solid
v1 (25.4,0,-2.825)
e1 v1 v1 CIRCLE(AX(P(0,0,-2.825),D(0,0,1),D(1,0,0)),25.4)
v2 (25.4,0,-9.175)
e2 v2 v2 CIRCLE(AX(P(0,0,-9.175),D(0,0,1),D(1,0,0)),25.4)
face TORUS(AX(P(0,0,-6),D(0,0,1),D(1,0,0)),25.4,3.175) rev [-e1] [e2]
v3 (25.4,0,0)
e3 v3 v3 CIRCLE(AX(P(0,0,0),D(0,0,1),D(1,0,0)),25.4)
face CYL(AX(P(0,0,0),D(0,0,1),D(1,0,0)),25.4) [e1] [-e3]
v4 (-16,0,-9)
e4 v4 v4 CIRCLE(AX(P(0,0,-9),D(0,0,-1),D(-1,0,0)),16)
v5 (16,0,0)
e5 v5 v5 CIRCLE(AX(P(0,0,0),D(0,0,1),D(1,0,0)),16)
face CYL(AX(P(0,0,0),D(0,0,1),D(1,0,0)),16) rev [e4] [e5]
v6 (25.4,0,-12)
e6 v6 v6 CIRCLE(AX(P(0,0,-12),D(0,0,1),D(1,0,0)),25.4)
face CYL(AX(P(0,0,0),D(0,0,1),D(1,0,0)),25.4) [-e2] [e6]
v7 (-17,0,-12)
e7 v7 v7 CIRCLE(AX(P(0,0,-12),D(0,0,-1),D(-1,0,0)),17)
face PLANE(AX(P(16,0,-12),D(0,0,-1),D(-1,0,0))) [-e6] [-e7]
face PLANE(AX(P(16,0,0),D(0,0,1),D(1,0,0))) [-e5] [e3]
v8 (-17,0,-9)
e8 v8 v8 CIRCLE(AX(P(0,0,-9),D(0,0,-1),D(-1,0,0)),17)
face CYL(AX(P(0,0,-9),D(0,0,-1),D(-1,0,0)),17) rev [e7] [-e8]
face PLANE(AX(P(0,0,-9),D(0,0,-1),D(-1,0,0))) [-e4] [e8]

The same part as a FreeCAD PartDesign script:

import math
import FreeCAD as App
import Part
import Sketcher

doc = App.newDocument("Part")
body = doc.addObject("PartDesign::Body", "Body")

sketch1 = body.newObject("Sketcher::SketchObject", "Sketch")
sketch1.AttachmentSupport = (doc.getObject("XZ_Plane"), [""])
sketch1.MapMode = "FlatFace"
sketch1.addGeometry([
    Part.LineSegment(App.Vector(16, 0, 0), App.Vector(25.4, 0, 0)),
    Part.LineSegment(App.Vector(25.4, 0, 0), App.Vector(25.4, -2.8, 0)),
    Part.ArcOfCircle(Part.Circle(App.Vector(25.4, -6, 0), App.Vector(0, 0, 1), 3.2), math.radians(90), math.radians(270)),
    Part.LineSegment(App.Vector(25.4, -9.2, 0), App.Vector(25.4, -12, 0)),
    Part.LineSegment(App.Vector(25.4, -12, 0), App.Vector(16, -12, 0)),
    Part.LineSegment(App.Vector(16, -12, 0), App.Vector(16, 0, 0)),
], False)
sketch1.addConstraint([
    Sketcher.Constraint("Coincident", 0, 2, 1, 1),
    Sketcher.Constraint("Coincident", 1, 2, 2, 1),
    Sketcher.Constraint("Coincident", 2, 2, 3, 1),
    Sketcher.Constraint("Coincident", 3, 2, 4, 1),
    Sketcher.Constraint("Coincident", 4, 2, 5, 1),
    Sketcher.Constraint("Coincident", 5, 2, 0, 1),
    Sketcher.Constraint("Horizontal", 0),
    Sketcher.Constraint("Vertical", 1),
    Sketcher.Constraint("Vertical", 3),
    Sketcher.Constraint("Horizontal", 4),
    Sketcher.Constraint("Vertical", 5),
    Sketcher.Constraint("PointOnObject", 0, 2, -1),
    Sketcher.Constraint("Vertical", 2, 3, 0, 2),
    Sketcher.Constraint("Vertical", 1, 2, 2, 2),
    Sketcher.Constraint("Equal", 1, 3),
    Sketcher.Constraint("DistanceY", 5, 1, 5, 2, 12.0),
    Sketcher.Constraint("DistanceX", 0, 1, 0, 2, 9.4),
    Sketcher.Constraint("DistanceX", -1, 1, 4, 2, 16.0),
    Sketcher.Constraint("Radius", 2, 3.175),
])
revolution = body.newObject("PartDesign::Revolution", "Revolution")
revolution.Profile = sketch1
revolution.ReferenceAxis = (sketch1, ["V_Axis"])
revolution.Angle = 360

sketch2 = body.newObject("Sketcher::SketchObject", "Sketch001")
sketch2.AttachmentSupport = (doc.getObject("XY_Plane"), [""])
sketch2.MapMode = "FlatFace"
sketch2.AttachmentOffset = App.Placement(App.Vector(0, 0, -12), App.Rotation())
sketch2.addGeometry(Part.Circle(App.Vector(0, 0, 0), App.Vector(0, 0, 1), 17), False)
sketch2.addConstraint([
    Sketcher.Constraint("Coincident", 0, 3, -1, 1),
    Sketcher.Constraint("Diameter", 0, 34.0),
])
pocket1 = body.newObject("PartDesign::Pocket", "Pocket")
pocket1.Profile = sketch2
pocket1.Length = 3
pocket1.Reversed = True

doc.recompute()
